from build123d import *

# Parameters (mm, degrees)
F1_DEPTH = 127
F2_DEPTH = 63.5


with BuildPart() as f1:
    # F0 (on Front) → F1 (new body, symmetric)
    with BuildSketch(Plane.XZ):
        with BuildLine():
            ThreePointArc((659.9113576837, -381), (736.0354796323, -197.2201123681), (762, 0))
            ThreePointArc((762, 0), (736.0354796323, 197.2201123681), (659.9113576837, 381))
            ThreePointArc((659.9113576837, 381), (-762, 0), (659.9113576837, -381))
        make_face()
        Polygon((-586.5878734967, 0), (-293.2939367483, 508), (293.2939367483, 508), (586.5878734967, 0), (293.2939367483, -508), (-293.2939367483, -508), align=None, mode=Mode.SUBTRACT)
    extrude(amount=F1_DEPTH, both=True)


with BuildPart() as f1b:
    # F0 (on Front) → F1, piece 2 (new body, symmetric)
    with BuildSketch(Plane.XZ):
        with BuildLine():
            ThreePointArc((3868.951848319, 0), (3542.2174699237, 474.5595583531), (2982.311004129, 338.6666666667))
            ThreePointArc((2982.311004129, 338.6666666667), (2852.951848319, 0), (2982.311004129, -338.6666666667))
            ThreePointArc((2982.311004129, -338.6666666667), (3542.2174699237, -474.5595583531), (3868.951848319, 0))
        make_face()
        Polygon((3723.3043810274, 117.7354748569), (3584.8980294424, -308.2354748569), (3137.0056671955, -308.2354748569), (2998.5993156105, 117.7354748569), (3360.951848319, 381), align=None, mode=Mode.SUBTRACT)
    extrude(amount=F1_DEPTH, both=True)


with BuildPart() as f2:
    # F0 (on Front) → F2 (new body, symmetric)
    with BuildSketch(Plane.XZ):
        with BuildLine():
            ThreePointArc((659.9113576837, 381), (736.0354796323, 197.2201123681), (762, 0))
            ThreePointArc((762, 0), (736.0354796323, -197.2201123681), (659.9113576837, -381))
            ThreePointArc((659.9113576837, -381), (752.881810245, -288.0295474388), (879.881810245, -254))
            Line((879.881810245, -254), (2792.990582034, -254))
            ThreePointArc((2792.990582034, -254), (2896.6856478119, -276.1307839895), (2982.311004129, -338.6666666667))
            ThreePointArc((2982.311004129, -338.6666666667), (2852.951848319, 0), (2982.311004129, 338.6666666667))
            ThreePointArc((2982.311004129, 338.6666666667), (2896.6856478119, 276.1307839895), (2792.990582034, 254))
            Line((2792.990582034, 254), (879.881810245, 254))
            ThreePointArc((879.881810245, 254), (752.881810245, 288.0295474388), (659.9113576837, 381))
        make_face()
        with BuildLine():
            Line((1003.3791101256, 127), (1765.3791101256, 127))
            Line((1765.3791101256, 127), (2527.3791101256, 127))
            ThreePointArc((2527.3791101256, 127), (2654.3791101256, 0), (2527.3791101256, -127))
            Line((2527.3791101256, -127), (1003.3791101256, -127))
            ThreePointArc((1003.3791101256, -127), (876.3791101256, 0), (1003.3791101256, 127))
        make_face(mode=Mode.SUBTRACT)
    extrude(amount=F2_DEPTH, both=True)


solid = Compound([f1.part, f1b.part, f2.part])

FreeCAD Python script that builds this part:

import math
import FreeCAD as App
import Part
import Sketcher

V = App.Vector
Q = App.Units.Quantity


def add_polygon(sketch, points):
    """Adds a closed chain of lines whose ends are joined by coincident constraints."""
    first, n = sketch.GeometryCount, len(points)
    for a, b in zip(points, points[1:] + points[:1]):
        sketch.addGeometry(Part.LineSegment(App.Vector(*a, 0), App.Vector(*b, 0)), False)
    for i in range(n):
        sketch.addConstraint(Sketcher.Constraint("Coincident", first + i, 2, first + (i + 1) % n, 1))

doc = App.newDocument("Part")
body = doc.addObject("PartDesign::Body", "Body")

# Sketch on XZ plane
sketch1 = doc.addObject("Sketcher::SketchObject", "Sketch")
body.addObject(sketch1)
sketch1.AttachmentSupport = (doc.XZ_Plane, [""])
sketch1.MapMode = "FlatFace"
sketch1.addGeometry(Part.Circle(V(0, 0, 0), V(0, 0, 1), 762), False)  # 0
add_polygon(sketch1, [(-293, -508), (-587, 0), (-293, 508), (293, 508), (587, 0), (293, -508)])  # lines 1-6
sketch1.addConstraint(Sketcher.Constraint("Horizontal", 3))
sketch1.addConstraint(Sketcher.Constraint("Horizontal", 6))
sketch1.addConstraint(Sketcher.Constraint("Coincident", 0, 3, -1, 1))
sketch1.addConstraint(Sketcher.Constraint("Symmetric", 1, 2, 4, 2, -1, 1))
sketch1.addConstraint(Sketcher.Constraint("Symmetric", 2, 2, 5, 2, -1, 1))
sketch1.addConstraint(Sketcher.Constraint("PointOnObject", 1, 2, -1))
sketch1.addConstraint(Sketcher.Constraint("Parallel", 1, 4))
sketch1.addConstraint(Sketcher.Constraint("Vertical", 3, 2, 5, 2))
sketch1.addConstraint(Sketcher.Constraint("Diameter", 0, Q("60 in")))
sketch1.addConstraint(Sketcher.Constraint("DistanceY", -1, 1, 2, 2, Q("20 in")))
sketch1.addConstraint(Sketcher.Constraint("Angle", 1, Q("120 deg")))
sketch1.addConstraint(Sketcher.Constraint("DistanceX", 3, 1, 3, 2, Q("586.587873 mm")))
pad1 = doc.addObject("PartDesign::Pad", "Pad")
body.addObject(pad1)
pad1.Profile = sketch1
pad1.Length = Q("10 in")
pad1.Midplane = True
body2 = doc.addObject("PartDesign::Body", "Body001")

# Sketch on XZ plane
sketch2 = doc.addObject("Sketcher::SketchObject", "Sketch001")
body2.addObject(sketch2)
sketch2.AttachmentSupport = (doc.getObject("XZ_Plane001"), [""])
sketch2.MapMode = "FlatFace"
sketch2.addGeometry(Part.Circle(V(3361, 0, 0), V(0, 0, 1), 508), False)  # 0
add_polygon(sketch2, [(3361, 381), (3723, 118), (3585, -308), (3137, -308), (2999, 118)])  # lines 1-5
sketch2.addConstraint(Sketcher.Constraint("Horizontal", 3))
sketch2.addConstraint(Sketcher.Constraint("PointOnObject", 0, 3, -1))
sketch2.addConstraint(Sketcher.Constraint("Horizontal", 1, 2, 4, 2))
sketch2.addConstraint(Sketcher.Constraint("Vertical", 0, 3, 5, 2))
sketch2.addConstraint(Sketcher.Constraint("Equal", 1, 2))
sketch2.addConstraint(Sketcher.Constraint("Equal", 2, 4))
sketch2.addConstraint(Sketcher.Constraint("Equal", 4, 5))
sketch2.addConstraint(Sketcher.Constraint("Diameter", 0, Q("40 in")))
sketch2.addConstraint(Sketcher.Constraint("DistanceY", -1, 1, 5, 2, Q("15 in")))
sketch2.addConstraint(Sketcher.Constraint("Angle", 1, Q("-36 deg")))
sketch2.addConstraint(Sketcher.Constraint("Angle", 2, Q("-108 deg")))
sketch2.addConstraint(Sketcher.Constraint("DistanceX", 3, 2, 3, 1, Q("447.892362 mm")))
sketch2.addConstraint(Sketcher.Constraint("DistanceX", -1, 1, 0, 3, Q("3360.951848 mm")))
pad2 = doc.addObject("PartDesign::Pad", "Pad001")
body2.addObject(pad2)
pad2.Profile = sketch2
pad2.Length = Q("10 in")
pad2.Midplane = True
body3 = doc.addObject("PartDesign::Body", "Body002")

# Sketch on XZ plane
sketch3 = doc.addObject("Sketcher::SketchObject", "Sketch002")
body3.addObject(sketch3)
sketch3.AttachmentSupport = (doc.getObject("XZ_Plane002"), [""])
sketch3.MapMode = "FlatFace"
sketch3.addGeometry(Part.ArcOfCircle(Part.Circle(V(0, 0, 0), V(0, 0, 1), 762), math.radians(-30), math.radians(30)), False)
sketch3.addGeometry(Part.ArcOfCircle(Part.Circle(V(880, -508, 0), V(0, 0, 1), 254), math.radians(90), math.radians(150)), False)
sketch3.addGeometry(Part.LineSegment(V(880, -254, 0), V(2793, -254, 0)), False)
sketch3.addGeometry(Part.ArcOfCircle(Part.Circle(V(2793, -508, 0), V(0, 0, 1), 254), math.radians(42), math.radians(90)), False)
sketch3.addGeometry(Part.ArcOfCircle(Part.Circle(V(3361, 0, 0), V(0, 0, 1), 508), math.radians(138), math.radians(222)), False)
sketch3.addGeometry(Part.ArcOfCircle(Part.Circle(V(2793, 508, 0), V(0, 0, 1), 254), math.radians(-90), math.radians(-42)), False)
sketch3.addGeometry(Part.LineSegment(V(2793, 254, 0), V(880, 254, 0)), False)
sketch3.addGeometry(Part.ArcOfCircle(Part.Circle(V(880, 508, 0), V(0, 0, 1), 254), math.radians(-150), math.radians(-90)), False)
sketch3.addGeometry(Part.ArcOfCircle(Part.Circle(V(1003, 0, 0), V(0, 0, 1), 127), math.radians(90), math.radians(270)), False)
sketch3.addGeometry(Part.LineSegment(V(1003, 127, 0), V(2527, 127, 0)), False)
sketch3.addGeometry(Part.ArcOfCircle(Part.Circle(V(2527, 0, 0), V(0, 0, 1), 127), math.radians(-90), math.radians(90)), False)
sketch3.addGeometry(Part.LineSegment(V(2527, -127, 0), V(1003, -127, 0)), False)
sketch3.addConstraint(Sketcher.Constraint("Tangent", 0, 1, 1, 2))
sketch3.addConstraint(Sketcher.Constraint("Tangent", 1, 1, 2, 1))
sketch3.addConstraint(Sketcher.Constraint("Tangent", 2, 2, 3, 2))
sketch3.addConstraint(Sketcher.Constraint("Tangent", 3, 1, 4, 2))
sketch3.addConstraint(Sketcher.Constraint("Tangent", 4, 1, 5, 2))
sketch3.addConstraint(Sketcher.Constraint("Tangent", 5, 1, 6, 1))
sketch3.addConstraint(Sketcher.Constraint("Tangent", 6, 2, 7, 2))
sketch3.addConstraint(Sketcher.Constraint("Tangent", 7, 1, 0, 2))
sketch3.addConstraint(Sketcher.Constraint("Tangent", 8, 1, 9, 1))
sketch3.addConstraint(Sketcher.Constraint("Tangent", 9, 2, 10, 2))
sketch3.addConstraint(Sketcher.Constraint("Tangent", 10, 1, 11, 1))
sketch3.addConstraint(Sketcher.Constraint("Tangent", 11, 2, 8, 2))
sketch3.addConstraint(Sketcher.Constraint("Horizontal", 2))
sketch3.addConstraint(Sketcher.Constraint("Horizontal", 6))
sketch3.addConstraint(Sketcher.Constraint("Horizontal", 9))
sketch3.addConstraint(Sketcher.Constraint("Horizontal", 11))
sketch3.addConstraint(Sketcher.Constraint("Coincident", 0, 3, -1, 1))
sketch3.addConstraint(Sketcher.Constraint("Equal", 1, 3))
sketch3.addConstraint(Sketcher.Constraint("Equal", 3, 5))
sketch3.addConstraint(Sketcher.Constraint("Equal", 5, 7))
sketch3.addConstraint(Sketcher.Constraint("Symmetric", 3, 3, 5, 3, -1))
sketch3.addConstraint(Sketcher.Constraint("PointOnObject", 8, 3, -1))
sketch3.addConstraint(Sketcher.Constraint("Radius", 0, Q("30 in")))
sketch3.addConstraint(Sketcher.Constraint("Radius", 1, Q("10 in")))
sketch3.addConstraint(Sketcher.Constraint("Radius", 4, Q("20 in")))
sketch3.addConstraint(Sketcher.Constraint("Radius", 8, Q("5 in")))
sketch3.addConstraint(Sketcher.Constraint("DistanceX", 9, 1, 9, 2, Q("60 in")))
sketch3.addConstraint(Sketcher.Constraint("DistanceY", 1, 3, -1, 1, Q("20 in")))
sketch3.addConstraint(Sketcher.Constraint("DistanceX", 2, 1, 2, 2, Q("1913.108772 mm")))
sketch3.addConstraint(Sketcher.Constraint("DistanceX", 1, 3, 8, 3, Q("123.4973 mm")))
pad3 = doc.addObject("PartDesign::Pad", "Pad002")
body3.addObject(pad3)
pad3.Profile = sketch3
pad3.Length = Q("5 in")
pad3.Midplane = True

doc.recompute()
